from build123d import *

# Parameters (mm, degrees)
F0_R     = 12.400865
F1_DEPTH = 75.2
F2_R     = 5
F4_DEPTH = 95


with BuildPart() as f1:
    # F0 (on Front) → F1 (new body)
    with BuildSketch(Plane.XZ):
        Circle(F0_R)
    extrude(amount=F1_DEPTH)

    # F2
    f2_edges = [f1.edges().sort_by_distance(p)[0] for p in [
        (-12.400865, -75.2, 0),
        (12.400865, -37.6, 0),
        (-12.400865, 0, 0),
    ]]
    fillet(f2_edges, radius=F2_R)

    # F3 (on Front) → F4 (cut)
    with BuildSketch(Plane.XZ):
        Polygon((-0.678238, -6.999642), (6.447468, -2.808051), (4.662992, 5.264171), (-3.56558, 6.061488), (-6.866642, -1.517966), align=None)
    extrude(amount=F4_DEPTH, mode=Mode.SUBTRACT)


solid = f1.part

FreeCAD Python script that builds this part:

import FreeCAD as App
import Part
import Sketcher
from FreeCAD import Vector
Q = App.Units.Quantity


def add_polygon(sketch, points):
    """Adds a closed chain of lines whose ends are joined by coincident constraints."""
    first, n = sketch.GeometryCount, len(points)
    for a, b in zip(points, points[1:] + points[:1]):
        sketch.addGeometry(Part.LineSegment(App.Vector(*a, 0), App.Vector(*b, 0)), False)
    for i in range(n):
        sketch.addConstraint(Sketcher.Constraint("Coincident", first + i, 2, first + (i + 1) % n, 1))

doc = App.newDocument("Part")
body = doc.addObject("PartDesign::Body", "Body")

# Sketch on XZ plane
sketch1 = body.newObject("Sketcher::SketchObject", "Sketch")
sketch1.AttachmentSupport = (doc.getObject("XZ_Plane"), [""])
sketch1.MapMode = "FlatFace"
sketch1.addGeometry(Part.Circle(Vector(0, 0, 0), Vector(0, 0, 1), 12), False)
sketch1.addConstraint([
    Sketcher.Constraint("Coincident", 0, 3, -1, 1),
    Sketcher.Constraint("Diameter", 0, Q("24.80173 mm")),
])
pad1 = body.newObject("PartDesign::Pad", "Pad")
pad1.Profile = sketch1
pad1.Length = 75.2
doc.recompute()

fillet = body.newObject("PartDesign::Fillet", "Fillet")
fillet.Base = (pad1, ["Edge1"])
fillet.UseAllEdges = True
fillet.Radius = 5

# Sketch on XZ plane
sketch2 = body.newObject("Sketcher::SketchObject", "Sketch001")
sketch2.AttachmentSupport = (doc.getObject("XZ_Plane"), [""])
sketch2.MapMode = "FlatFace"
add_polygon(sketch2, [(-1, -7), (6, -3), (5, 5), (-4, 6), (-7, -2)])  # lines 0-4
sketch2.addConstraint([
    Sketcher.Constraint("Equal", 0, 1),
    Sketcher.Constraint("Equal", 1, 2),
    Sketcher.Constraint("Equal", 2, 3),
    Sketcher.Constraint("Equal", 3, 4),
    Sketcher.Constraint("Distance", 0, Q("8.267111 mm")),
    Sketcher.Constraint("DistanceY", 0, 2, -1, 1, Q("2.808051 mm")),
    Sketcher.Constraint("DistanceY", -1, 1, 1, 2, Q("5.264171 mm")),
    Sketcher.Constraint("DistanceX", 2, 2, -1, 1, Q("3.56558 mm")),
    Sketcher.Constraint("DistanceX", 3, 2, -1, 1, Q("6.866642 mm")),
    Sketcher.Constraint("DistanceX", 4, 2, -1, 1, Q("0.678238 mm")),
])
pocket1 = body.newObject("PartDesign::Pocket", "Pocket")
pocket1.Profile = sketch2
pocket1.Length = 95
pocket1.Reversed = True

doc.recompute()
